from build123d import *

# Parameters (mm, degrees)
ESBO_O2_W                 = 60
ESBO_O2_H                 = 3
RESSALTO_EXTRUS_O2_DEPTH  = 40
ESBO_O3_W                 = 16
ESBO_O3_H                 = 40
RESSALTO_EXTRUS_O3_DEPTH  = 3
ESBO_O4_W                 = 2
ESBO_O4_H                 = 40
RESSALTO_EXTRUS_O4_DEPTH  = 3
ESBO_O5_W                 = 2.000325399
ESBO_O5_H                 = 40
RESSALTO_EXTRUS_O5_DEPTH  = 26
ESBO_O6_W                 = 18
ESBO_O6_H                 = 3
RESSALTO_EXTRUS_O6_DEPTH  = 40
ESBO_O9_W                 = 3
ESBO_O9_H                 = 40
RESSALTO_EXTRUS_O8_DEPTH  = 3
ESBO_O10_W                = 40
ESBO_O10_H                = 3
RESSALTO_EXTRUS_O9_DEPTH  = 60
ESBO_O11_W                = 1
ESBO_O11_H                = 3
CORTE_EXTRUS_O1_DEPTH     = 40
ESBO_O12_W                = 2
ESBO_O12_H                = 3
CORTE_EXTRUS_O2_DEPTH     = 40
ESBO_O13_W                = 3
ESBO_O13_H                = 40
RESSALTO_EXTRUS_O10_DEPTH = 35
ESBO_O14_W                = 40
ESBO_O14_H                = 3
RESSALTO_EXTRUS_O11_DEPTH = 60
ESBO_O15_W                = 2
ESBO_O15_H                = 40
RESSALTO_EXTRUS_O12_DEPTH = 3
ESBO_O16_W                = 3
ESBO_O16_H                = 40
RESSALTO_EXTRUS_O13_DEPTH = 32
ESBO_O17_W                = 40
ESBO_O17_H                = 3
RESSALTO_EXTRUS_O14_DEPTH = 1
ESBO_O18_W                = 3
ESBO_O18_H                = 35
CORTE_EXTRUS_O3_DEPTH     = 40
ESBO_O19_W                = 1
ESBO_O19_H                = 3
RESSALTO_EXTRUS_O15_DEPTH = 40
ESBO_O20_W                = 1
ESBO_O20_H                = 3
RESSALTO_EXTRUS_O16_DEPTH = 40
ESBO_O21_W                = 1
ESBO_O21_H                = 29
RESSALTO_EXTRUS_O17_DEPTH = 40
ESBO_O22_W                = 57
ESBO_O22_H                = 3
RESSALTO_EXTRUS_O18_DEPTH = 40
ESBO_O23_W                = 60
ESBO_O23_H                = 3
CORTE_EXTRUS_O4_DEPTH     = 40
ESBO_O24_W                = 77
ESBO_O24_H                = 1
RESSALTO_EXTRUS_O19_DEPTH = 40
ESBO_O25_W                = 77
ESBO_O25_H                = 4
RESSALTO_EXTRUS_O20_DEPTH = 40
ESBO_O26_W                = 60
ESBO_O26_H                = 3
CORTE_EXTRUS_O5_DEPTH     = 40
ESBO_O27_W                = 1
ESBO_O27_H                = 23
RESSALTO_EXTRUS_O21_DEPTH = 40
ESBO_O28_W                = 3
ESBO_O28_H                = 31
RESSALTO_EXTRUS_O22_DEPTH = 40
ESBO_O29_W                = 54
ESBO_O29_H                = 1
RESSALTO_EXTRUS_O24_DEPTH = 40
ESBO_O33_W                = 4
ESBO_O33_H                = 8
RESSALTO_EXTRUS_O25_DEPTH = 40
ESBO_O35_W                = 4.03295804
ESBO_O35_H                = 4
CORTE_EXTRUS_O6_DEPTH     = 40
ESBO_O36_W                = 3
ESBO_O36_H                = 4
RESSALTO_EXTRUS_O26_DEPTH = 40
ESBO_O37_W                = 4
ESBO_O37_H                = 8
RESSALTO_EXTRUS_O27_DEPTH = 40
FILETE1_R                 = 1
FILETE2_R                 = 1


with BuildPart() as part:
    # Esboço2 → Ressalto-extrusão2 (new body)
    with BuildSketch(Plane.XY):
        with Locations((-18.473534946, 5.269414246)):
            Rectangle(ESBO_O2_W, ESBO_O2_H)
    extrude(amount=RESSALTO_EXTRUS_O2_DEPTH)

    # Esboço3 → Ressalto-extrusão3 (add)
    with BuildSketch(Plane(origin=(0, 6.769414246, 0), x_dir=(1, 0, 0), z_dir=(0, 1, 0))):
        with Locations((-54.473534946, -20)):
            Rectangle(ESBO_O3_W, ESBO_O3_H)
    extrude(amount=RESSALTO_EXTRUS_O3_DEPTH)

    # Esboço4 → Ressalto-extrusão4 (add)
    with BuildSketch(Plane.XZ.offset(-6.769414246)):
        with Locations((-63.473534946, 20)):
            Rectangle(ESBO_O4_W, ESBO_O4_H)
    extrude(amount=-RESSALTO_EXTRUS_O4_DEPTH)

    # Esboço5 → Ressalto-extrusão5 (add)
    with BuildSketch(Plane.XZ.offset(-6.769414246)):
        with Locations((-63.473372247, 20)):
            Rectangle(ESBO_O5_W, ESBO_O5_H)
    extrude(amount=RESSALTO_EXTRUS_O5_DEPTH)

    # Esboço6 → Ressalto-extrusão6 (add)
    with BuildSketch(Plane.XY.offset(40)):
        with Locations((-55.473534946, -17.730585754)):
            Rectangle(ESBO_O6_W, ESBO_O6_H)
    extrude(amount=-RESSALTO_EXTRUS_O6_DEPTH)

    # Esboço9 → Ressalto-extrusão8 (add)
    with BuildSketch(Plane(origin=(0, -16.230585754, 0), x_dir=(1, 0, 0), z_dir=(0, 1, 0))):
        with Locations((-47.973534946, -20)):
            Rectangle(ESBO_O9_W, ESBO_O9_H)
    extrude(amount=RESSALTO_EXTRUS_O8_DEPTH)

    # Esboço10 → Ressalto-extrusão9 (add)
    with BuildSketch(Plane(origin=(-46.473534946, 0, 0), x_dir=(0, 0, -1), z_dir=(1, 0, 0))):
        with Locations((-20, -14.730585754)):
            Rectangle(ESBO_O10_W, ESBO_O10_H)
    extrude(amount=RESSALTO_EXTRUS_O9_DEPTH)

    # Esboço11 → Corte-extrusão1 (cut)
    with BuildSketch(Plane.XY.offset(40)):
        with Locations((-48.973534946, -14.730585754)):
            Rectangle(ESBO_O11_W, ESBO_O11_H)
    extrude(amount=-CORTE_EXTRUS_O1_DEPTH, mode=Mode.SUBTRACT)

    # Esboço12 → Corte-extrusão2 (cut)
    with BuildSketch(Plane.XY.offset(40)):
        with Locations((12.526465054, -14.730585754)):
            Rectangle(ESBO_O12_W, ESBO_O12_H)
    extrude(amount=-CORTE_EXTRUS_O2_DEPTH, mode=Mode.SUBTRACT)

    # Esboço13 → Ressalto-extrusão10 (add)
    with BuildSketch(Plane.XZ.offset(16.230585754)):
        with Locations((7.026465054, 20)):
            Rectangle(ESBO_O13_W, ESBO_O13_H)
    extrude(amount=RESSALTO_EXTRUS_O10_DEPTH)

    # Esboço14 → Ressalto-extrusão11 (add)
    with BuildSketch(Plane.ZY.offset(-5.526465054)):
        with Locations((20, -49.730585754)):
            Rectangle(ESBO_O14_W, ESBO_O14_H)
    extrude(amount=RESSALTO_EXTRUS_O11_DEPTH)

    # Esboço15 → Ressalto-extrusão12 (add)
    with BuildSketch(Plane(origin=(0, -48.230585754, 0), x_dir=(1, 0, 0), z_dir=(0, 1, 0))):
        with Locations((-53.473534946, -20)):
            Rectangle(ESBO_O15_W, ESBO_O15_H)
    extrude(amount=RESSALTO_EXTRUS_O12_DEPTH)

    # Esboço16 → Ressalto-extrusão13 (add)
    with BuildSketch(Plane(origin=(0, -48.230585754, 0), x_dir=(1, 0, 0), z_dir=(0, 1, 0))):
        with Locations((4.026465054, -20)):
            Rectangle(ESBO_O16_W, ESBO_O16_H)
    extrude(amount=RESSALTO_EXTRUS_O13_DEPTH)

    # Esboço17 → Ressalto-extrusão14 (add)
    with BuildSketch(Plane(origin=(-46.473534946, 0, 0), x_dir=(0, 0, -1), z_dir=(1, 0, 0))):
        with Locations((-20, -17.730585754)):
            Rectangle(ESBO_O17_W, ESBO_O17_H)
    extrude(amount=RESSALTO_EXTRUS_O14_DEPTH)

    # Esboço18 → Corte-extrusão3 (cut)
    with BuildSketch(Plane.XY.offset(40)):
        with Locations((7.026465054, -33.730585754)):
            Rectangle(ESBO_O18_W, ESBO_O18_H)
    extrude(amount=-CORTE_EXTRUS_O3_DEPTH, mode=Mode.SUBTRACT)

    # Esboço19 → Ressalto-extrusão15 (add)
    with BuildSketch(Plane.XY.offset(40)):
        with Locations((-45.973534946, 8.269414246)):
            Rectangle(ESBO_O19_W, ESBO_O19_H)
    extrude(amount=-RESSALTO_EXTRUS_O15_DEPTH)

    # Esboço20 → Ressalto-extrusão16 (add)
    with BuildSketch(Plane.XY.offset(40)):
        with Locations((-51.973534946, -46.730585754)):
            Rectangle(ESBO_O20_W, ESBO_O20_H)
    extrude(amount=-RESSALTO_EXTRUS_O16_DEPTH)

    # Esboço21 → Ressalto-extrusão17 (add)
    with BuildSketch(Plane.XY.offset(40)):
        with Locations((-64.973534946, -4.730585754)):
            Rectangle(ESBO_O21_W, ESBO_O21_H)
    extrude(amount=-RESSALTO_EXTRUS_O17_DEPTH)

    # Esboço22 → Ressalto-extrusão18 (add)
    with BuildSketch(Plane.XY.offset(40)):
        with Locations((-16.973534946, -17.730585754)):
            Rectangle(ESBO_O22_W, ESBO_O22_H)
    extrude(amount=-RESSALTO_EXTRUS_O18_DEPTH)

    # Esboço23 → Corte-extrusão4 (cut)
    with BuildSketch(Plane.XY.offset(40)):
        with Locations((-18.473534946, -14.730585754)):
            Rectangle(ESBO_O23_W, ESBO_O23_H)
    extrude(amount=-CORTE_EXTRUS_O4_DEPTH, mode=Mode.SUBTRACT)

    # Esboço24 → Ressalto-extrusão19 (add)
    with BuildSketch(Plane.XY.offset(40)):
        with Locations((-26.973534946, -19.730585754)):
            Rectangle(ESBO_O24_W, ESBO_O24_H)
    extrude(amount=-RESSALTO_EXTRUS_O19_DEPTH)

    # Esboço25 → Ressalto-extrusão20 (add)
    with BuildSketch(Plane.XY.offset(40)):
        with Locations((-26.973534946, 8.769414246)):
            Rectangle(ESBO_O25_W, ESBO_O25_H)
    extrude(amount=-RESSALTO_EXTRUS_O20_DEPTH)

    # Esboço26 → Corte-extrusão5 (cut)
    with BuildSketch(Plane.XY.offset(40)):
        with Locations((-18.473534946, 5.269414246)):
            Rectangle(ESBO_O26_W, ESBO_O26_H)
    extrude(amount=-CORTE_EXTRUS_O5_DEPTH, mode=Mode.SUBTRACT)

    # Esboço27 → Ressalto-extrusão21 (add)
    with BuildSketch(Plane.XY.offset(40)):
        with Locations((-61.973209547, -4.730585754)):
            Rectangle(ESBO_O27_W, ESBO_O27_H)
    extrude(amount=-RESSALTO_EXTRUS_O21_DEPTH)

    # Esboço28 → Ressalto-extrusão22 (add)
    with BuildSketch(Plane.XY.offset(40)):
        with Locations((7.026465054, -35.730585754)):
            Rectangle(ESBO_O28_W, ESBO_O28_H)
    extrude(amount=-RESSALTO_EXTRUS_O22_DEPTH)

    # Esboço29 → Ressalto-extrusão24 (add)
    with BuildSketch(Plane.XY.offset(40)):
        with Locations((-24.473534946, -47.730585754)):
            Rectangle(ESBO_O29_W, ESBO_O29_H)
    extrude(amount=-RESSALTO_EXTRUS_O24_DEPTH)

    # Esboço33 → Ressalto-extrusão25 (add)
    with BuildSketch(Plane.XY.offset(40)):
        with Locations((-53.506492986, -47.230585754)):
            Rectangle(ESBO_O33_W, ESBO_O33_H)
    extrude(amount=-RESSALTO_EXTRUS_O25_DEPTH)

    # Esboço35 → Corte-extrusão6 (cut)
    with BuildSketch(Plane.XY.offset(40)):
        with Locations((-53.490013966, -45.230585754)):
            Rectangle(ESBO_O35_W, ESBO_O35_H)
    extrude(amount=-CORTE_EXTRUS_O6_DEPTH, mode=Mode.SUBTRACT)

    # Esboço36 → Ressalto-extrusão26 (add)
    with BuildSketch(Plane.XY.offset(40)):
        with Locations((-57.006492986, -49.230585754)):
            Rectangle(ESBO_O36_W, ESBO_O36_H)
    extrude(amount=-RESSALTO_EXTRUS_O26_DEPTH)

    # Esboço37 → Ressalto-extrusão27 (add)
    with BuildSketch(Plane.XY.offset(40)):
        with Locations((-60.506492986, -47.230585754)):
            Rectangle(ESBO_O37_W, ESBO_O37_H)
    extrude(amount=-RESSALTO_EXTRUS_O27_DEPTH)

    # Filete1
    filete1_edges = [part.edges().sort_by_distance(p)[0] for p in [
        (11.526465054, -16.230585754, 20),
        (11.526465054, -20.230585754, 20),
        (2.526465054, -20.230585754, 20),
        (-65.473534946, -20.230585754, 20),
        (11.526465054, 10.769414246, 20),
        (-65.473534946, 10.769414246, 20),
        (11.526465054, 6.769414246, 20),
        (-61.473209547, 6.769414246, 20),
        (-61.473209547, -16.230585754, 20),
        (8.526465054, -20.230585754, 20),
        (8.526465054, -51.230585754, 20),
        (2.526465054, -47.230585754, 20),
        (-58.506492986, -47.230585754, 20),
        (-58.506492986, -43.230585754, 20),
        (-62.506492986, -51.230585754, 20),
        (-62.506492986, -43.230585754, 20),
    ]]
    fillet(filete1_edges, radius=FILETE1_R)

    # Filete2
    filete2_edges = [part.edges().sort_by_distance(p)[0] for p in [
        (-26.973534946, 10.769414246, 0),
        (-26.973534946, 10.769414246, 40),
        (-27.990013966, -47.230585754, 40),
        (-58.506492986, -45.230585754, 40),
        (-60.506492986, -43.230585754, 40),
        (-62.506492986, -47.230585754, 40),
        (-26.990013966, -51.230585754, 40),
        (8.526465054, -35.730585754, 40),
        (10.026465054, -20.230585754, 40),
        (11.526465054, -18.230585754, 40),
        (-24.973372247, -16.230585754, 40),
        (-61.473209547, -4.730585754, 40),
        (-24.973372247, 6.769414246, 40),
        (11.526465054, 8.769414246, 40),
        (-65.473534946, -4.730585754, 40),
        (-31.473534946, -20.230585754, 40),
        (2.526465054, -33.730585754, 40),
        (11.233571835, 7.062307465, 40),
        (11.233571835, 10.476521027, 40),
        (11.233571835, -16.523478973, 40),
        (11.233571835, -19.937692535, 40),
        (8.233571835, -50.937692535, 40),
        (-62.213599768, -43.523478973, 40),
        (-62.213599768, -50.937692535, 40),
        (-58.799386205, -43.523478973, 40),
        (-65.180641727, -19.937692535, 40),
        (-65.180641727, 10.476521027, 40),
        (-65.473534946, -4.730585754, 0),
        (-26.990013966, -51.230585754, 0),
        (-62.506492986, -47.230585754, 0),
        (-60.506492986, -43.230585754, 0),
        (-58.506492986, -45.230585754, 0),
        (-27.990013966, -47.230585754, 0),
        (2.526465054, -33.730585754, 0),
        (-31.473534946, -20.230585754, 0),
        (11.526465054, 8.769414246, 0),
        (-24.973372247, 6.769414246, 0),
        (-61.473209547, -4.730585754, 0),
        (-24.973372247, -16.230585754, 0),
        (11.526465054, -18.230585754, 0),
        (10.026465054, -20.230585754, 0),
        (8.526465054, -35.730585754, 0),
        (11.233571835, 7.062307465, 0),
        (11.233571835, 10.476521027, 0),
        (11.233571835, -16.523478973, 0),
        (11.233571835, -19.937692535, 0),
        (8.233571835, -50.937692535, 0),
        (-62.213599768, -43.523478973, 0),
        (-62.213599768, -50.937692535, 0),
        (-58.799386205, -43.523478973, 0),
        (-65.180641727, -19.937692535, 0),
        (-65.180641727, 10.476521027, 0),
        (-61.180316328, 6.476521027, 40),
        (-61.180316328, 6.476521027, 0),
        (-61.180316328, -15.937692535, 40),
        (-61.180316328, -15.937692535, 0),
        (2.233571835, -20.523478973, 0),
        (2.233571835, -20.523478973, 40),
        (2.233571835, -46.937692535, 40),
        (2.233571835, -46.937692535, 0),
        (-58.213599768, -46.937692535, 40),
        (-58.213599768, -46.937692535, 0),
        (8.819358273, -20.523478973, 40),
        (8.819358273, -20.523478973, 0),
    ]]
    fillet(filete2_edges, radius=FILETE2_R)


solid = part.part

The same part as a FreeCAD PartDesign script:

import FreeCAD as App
import Part
import Sketcher
from FreeCAD import Vector


def edges_at(feature, points):
    """Names of the edges that pass closest to the given points."""
    edges = feature.Shape.Edges
    near = lambda p: min(range(len(edges)), key=lambda i: edges[i].distToShape(Part.Vertex(*p))[0])
    return sorted({f"Edge{near(p) + 1}" for p in points})


def add_polygon(sketch, points):
    """Adds a closed chain of lines whose ends are joined by coincident constraints."""
    first, n = sketch.GeometryCount, len(points)
    for a, b in zip(points, points[1:] + points[:1]):
        sketch.addGeometry(Part.LineSegment(App.Vector(*a, 0), App.Vector(*b, 0)), False)
    for i in range(n):
        sketch.addConstraint(Sketcher.Constraint("Coincident", first + i, 2, first + (i + 1) % n, 1))

doc = App.newDocument("Part")
params = doc.addObject("Spreadsheet::Sheet", "Params")
for row, (alias, value) in enumerate([
    ("sketch1_width", "60 mm"),
    ("sketch1_height", "3 mm"),
    ("pad1_length", "40 mm"),
    ("sketch2_width", "16 mm"),
    ("sketch2_height", "40 mm"),
    ("pad2_length", "3 mm"),
    ("sketch3_width", "2 mm"),
    ("sketch3_height", "40 mm"),
    ("pad3_length", "3 mm"),
    ("sketch4_height", "40 mm"),
    ("pad4_length", "26 mm"),
    ("sketch5_width", "18 mm"),
    ("sketch5_height", "3 mm"),
    ("pad5_length", "40 mm"),
    ("sketch6_width", "3 mm"),
    ("sketch6_height", "40 mm"),
    ("pad6_length", "3 mm"),
    ("sketch7_width", "3 mm"),
    ("sketch7_height", "40 mm"),
    ("pad7_length", "60 mm"),
    ("sketch8_width", "1 mm"),
    ("sketch8_height", "3 mm"),
    ("pocket1_length", "40 mm"),
    ("sketch9_width", "2 mm"),
    ("sketch9_height", "3 mm"),
    ("pocket2_length", "40 mm"),
    ("sketch10_width", "3 mm"),
    ("sketch10_height", "40 mm"),
    ("pad8_length", "35 mm"),
    ("sketch11_width", "3 mm"),
    ("sketch11_height", "40 mm"),
    ("pad9_length", "60 mm"),
    ("sketch12_width", "2 mm"),
    ("sketch12_height", "40 mm"),
    ("pad10_length", "3 mm"),
    ("sketch13_width", "3 mm"),
    ("sketch13_height", "40 mm"),
    ("pad11_length", "32 mm"),
    ("sketch14_width", "3 mm"),
    ("sketch14_height", "40 mm"),
    ("pad12_length", "1 mm"),
    ("sketch15_width", "3 mm"),
    ("sketch15_height", "35 mm"),
    ("pocket3_length", "40 mm"),
    ("sketch16_width", "1 mm"),
    ("sketch16_height", "3 mm"),
    ("pad13_length", "40 mm"),
    ("sketch17_width", "1 mm"),
    ("sketch17_height", "3 mm"),
    ("pad14_length", "40 mm"),
    ("sketch18_width", "1 mm"),
    ("sketch18_height", "29 mm"),
    ("pad15_length", "40 mm"),
    ("sketch19_width", "57 mm"),
    ("sketch19_height", "3 mm"),
    ("pad16_length", "40 mm"),
    ("sketch20_width", "60 mm"),
    ("sketch20_height", "3 mm"),
    ("pocket4_length", "40 mm"),
    ("sketch21_width", "77 mm"),
    ("sketch21_height", "1 mm"),
    ("pad17_length", "40 mm"),
    ("sketch22_width", "77 mm"),
    ("sketch22_height", "4 mm"),
    ("pad18_length", "40 mm"),
    ("sketch23_width", "60 mm"),
    ("sketch23_height", "3 mm"),
    ("pocket5_length", "40 mm"),
    ("sketch24_width", "1 mm"),
    ("sketch24_height", "23 mm"),
    ("pad19_length", "40 mm"),
    ("sketch25_width", "3 mm"),
    ("sketch25_height", "31 mm"),
    ("pad20_length", "40 mm"),
    ("sketch26_width", "54 mm"),
    ("sketch26_height", "1 mm"),
    ("pad21_length", "40 mm"),
    ("sketch27_width", "4 mm"),
    ("sketch27_height", "8 mm"),
    ("pad22_length", "40 mm"),
    ("sketch28_height", "4 mm"),
    ("pocket6_length", "40 mm"),
    ("sketch29_width", "3 mm"),
    ("sketch29_height", "4 mm"),
    ("pad23_length", "40 mm"),
    ("sketch30_width", "4 mm"),
    ("sketch30_height", "8 mm"),
    ("pad24_length", "40 mm"),
    ("fillet_radius", "1 mm"),
    ("fillet2_radius", "1 mm"),
], start=1):
    params.set(f"A{row}", alias)
    params.set(f"B{row}", "=" + value)
    params.setAlias(f"B{row}", alias)

body = doc.addObject("PartDesign::Body", "Body")

sketch1 = body.newObject("Sketcher::SketchObject", "Sketch")
sketch1.AttachmentSupport = (doc.getObject("XY_Plane"), [""])
sketch1.MapMode = "FlatFace"
add_polygon(sketch1, [(-48.5, 6.8), (-48.5, 3.8), (11.5, 3.8), (11.5, 6.8)])
sketch1.addConstraint([
    Sketcher.Constraint("Vertical", 0),
    Sketcher.Constraint("Horizontal", 1),
    Sketcher.Constraint("Vertical", 2),
    Sketcher.Constraint("Horizontal", 3),
    Sketcher.Constraint("DistanceX", 1, 1, 1, 2, 60.0),
    Sketcher.Constraint("DistanceY", 0, 2, 0, 1, 3.0),
    Sketcher.Constraint("DistanceX", 0, 2, -1, 1, 48.473535),
    Sketcher.Constraint("DistanceY", -1, 1, 0, 2, 3.769414),
])
sketch1.setExpression("Constraints[8]", "Params.sketch1_width")
sketch1.setExpression("Constraints[9]", "Params.sketch1_height")
pad1 = body.newObject("PartDesign::Pad", "Pad")
pad1.Profile = sketch1
pad1.setExpression("Length", "Params.pad1_length")

sketch2 = body.newObject("Sketcher::SketchObject", "Sketch001")
sketch2.AttachmentSupport = (doc.getObject("XZ_Plane"), [""])
sketch2.MapMode = "FlatFace"
sketch2.AttachmentOffset = App.Placement(Vector(0, 0, -6.769414), App.Rotation())
add_polygon(sketch2, [(-62, 0), (-62, 40), (-46, 40), (-46, 0)])
sketch2.addConstraint([
    Sketcher.Constraint("Vertical", 0),
    Sketcher.Constraint("Horizontal", 1),
    Sketcher.Constraint("Vertical", 2),
    Sketcher.Constraint("Horizontal", 3),
    Sketcher.Constraint("PointOnObject", 2, 2, -1),
    Sketcher.Constraint("DistanceX", 1, 1, 1, 2, 16.0),
    Sketcher.Constraint("DistanceY", 0, 1, 0, 2, 40.0),
    Sketcher.Constraint("DistanceX", 0, 2, -1, 1, 62.473535),
])
sketch2.setExpression("Constraints[9]", "Params.sketch2_width")
sketch2.setExpression("Constraints[10]", "Params.sketch2_height")
pad2 = body.newObject("PartDesign::Pad", "Pad001")
pad2.Profile = sketch2
pad2.setExpression("Length", "Params.pad2_length")
pad2.Reversed = True

sketch3 = body.newObject("Sketcher::SketchObject", "Sketch002")
sketch3.AttachmentSupport = (doc.getObject("XZ_Plane"), [""])
sketch3.MapMode = "FlatFace"
sketch3.AttachmentOffset = App.Placement(Vector(0, 0, -6.769414), App.Rotation())
add_polygon(sketch3, [(-64.5, 40), (-64.5, 0), (-62.5, 0), (-62.5, 40)])
sketch3.addConstraint([
    Sketcher.Constraint("Vertical", 0),
    Sketcher.Constraint("Horizontal", 1),
    Sketcher.Constraint("Vertical", 2),
    Sketcher.Constraint("Horizontal", 3),
    Sketcher.Constraint("PointOnObject", 0, 2, -1),
    Sketcher.Constraint("DistanceX", 1, 1, 1, 2, 2.0),
    Sketcher.Constraint("DistanceY", 0, 2, 0, 1, 40.0),
    Sketcher.Constraint("DistanceX", 0, 2, -1, 1, 64.473535),
])
sketch3.setExpression("Constraints[9]", "Params.sketch3_width")
sketch3.setExpression("Constraints[10]", "Params.sketch3_height")
pad3 = body.newObject("PartDesign::Pad", "Pad002")
pad3.Profile = sketch3
pad3.setExpression("Length", "Params.pad3_length")
pad3.Reversed = True

sketch4 = body.newObject("Sketcher::SketchObject", "Sketch003")
sketch4.AttachmentSupport = (doc.getObject("XZ_Plane"), [""])
sketch4.MapMode = "FlatFace"
sketch4.AttachmentOffset = App.Placement(Vector(0, 0, -6.769414), App.Rotation())
add_polygon(sketch4, [(-64.5, 40), (-64.5, 0), (-62.5, 0), (-62.5, 40)])
sketch4.addConstraint([
    Sketcher.Constraint("Vertical", 0),
    Sketcher.Constraint("Horizontal", 1),
    Sketcher.Constraint("Vertical", 2),
    Sketcher.Constraint("Horizontal", 3),
    Sketcher.Constraint("PointOnObject", 0, 2, -1),
    Sketcher.Constraint("DistanceY", 0, 2, 0, 1, 40.0),
    Sketcher.Constraint("DistanceX", 1, 1, 1, 2, 2.000325),
    Sketcher.Constraint("DistanceX", 1, 2, -1, 1, 62.47321),
])
sketch4.setExpression("Constraints[9]", "Params.sketch4_height")
pad4 = body.newObject("PartDesign::Pad", "Pad003")
pad4.Profile = sketch4
pad4.setExpression("Length", "Params.pad4_length")

sketch5 = body.newObject("Sketcher::SketchObject", "Sketch004")
sketch5.AttachmentSupport = (doc.getObject("XY_Plane"), [""])
sketch5.MapMode = "FlatFace"
sketch5.AttachmentOffset = App.Placement(Vector(0, 0, 40), App.Rotation())
add_polygon(sketch5, [(-64.5, -16.2), (-64.5, -19.2), (-46.5, -19.2), (-46.5, -16.2)])
sketch5.addConstraint([
    Sketcher.Constraint("Vertical", 0),
    Sketcher.Constraint("Horizontal", 1),
    Sketcher.Constraint("Vertical", 2),
    Sketcher.Constraint("Horizontal", 3),
    Sketcher.Constraint("DistanceX", 1, 1, 1, 2, 18.0),
    Sketcher.Constraint("DistanceY", 0, 2, 0, 1, 3.0),
    Sketcher.Constraint("DistanceX", 0, 2, -1, 1, 64.473535),
    Sketcher.Constraint("DistanceY", 0, 2, -1, 1, 19.230586),
])
sketch5.setExpression("Constraints[8]", "Params.sketch5_width")
sketch5.setExpression("Constraints[9]", "Params.sketch5_height")
pad5 = body.newObject("PartDesign::Pad", "Pad004")
pad5.Profile = sketch5
pad5.setExpression("Length", "Params.pad5_length")
pad5.Reversed = True

sketch6 = body.newObject("Sketcher::SketchObject", "Sketch005")
sketch6.AttachmentSupport = (doc.getObject("XZ_Plane"), [""])
sketch6.MapMode = "FlatFace"
sketch6.AttachmentOffset = App.Placement(Vector(0, 0, 16.230586), App.Rotation())
add_polygon(sketch6, [(-49.5, 0), (-49.5, 40), (-46.5, 40), (-46.5, 0)])
sketch6.addConstraint([
    Sketcher.Constraint("Vertical", 0),
    Sketcher.Constraint("Horizontal", 1),
    Sketcher.Constraint("Vertical", 2),
    Sketcher.Constraint("Horizontal", 3),
    Sketcher.Constraint("PointOnObject", 2, 2, -1),
    Sketcher.Constraint("DistanceX", 1, 1, 1, 2, 3.0),
    Sketcher.Constraint("DistanceY", 0, 1, 0, 2, 40.0),
    Sketcher.Constraint("DistanceX", 0, 2, -1, 1, 49.473535),
])
sketch6.setExpression("Constraints[9]", "Params.sketch6_width")
sketch6.setExpression("Constraints[10]", "Params.sketch6_height")
pad6 = body.newObject("PartDesign::Pad", "Pad005")
pad6.Profile = sketch6
pad6.setExpression("Length", "Params.pad6_length")
pad6.Reversed = True

sketch7 = body.newObject("Sketcher::SketchObject", "Sketch006")
sketch7.AttachmentSupport = (doc.getObject("YZ_Plane"), [""])
sketch7.MapMode = "FlatFace"
sketch7.AttachmentOffset = App.Placement(Vector(0, 0, -46.473535), App.Rotation())
add_polygon(sketch7, [(-13.2, 40), (-16.2, 40), (-16.2, 0), (-13.2, 0)])
sketch7.addConstraint([
    Sketcher.Constraint("Horizontal", 0),
    Sketcher.Constraint("Vertical", 1),
    Sketcher.Constraint("Horizontal", 2),
    Sketcher.Constraint("Vertical", 3),
    Sketcher.Constraint("PointOnObject", 1, 2, -1),
    Sketcher.Constraint("DistanceX", 0, 2, 0, 1, 3.0),
    Sketcher.Constraint("DistanceY", 1, 2, 1, 1, 40.0),
    Sketcher.Constraint("DistanceX", 0, 2, -1, 1, 16.230586),
])
sketch7.setExpression("Constraints[9]", "Params.sketch7_width")
sketch7.setExpression("Constraints[10]", "Params.sketch7_height")
pad7 = body.newObject("PartDesign::Pad", "Pad006")
pad7.Profile = sketch7
pad7.setExpression("Length", "Params.pad7_length")

sketch8 = body.newObject("Sketcher::SketchObject", "Sketch007")
sketch8.AttachmentSupport = (doc.getObject("XY_Plane"), [""])
sketch8.MapMode = "FlatFace"
sketch8.AttachmentOffset = App.Placement(Vector(0, 0, 40), App.Rotation())
add_polygon(sketch8, [(-49.5, -13.2), (-49.5, -16.2), (-48.5, -16.2), (-48.5, -13.2)])
sketch8.addConstraint([
    Sketcher.Constraint("Vertical", 0),
    Sketcher.Constraint("Horizontal", 1),
    Sketcher.Constraint("Vertical", 2),
    Sketcher.Constraint("Horizontal", 3),
    Sketcher.Constraint("DistanceX", 1, 1, 1, 2, 1.0),
    Sketcher.Constraint("DistanceY", 0, 2, 0, 1, 3.0),
    Sketcher.Constraint("DistanceX", 0, 2, -1, 1, 49.473535),
    Sketcher.Constraint("DistanceY", 0, 2, -1, 1, 16.230586),
])
sketch8.setExpression("Constraints[8]", "Params.sketch8_width")
sketch8.setExpression("Constraints[9]", "Params.sketch8_height")
pocket1 = body.newObject("PartDesign::Pocket", "Pocket")
pocket1.Profile = sketch8
pocket1.setExpression("Length", "Params.pocket1_length")

sketch9 = body.newObject("Sketcher::SketchObject", "Sketch008")
sketch9.AttachmentSupport = (doc.getObject("XY_Plane"), [""])
sketch9.MapMode = "FlatFace"
sketch9.AttachmentOffset = App.Placement(Vector(0, 0, 40), App.Rotation())
add_polygon(sketch9, [(11.5, -13.2), (11.5, -16.2), (13.5, -16.2), (13.5, -13.2)])
sketch9.addConstraint([
    Sketcher.Constraint("Vertical", 0),
    Sketcher.Constraint("Horizontal", 1),
    Sketcher.Constraint("Vertical", 2),
    Sketcher.Constraint("Horizontal", 3),
    Sketcher.Constraint("DistanceX", 1, 1, 1, 2, 2.0),
    Sketcher.Constraint("DistanceY", 0, 2, 0, 1, 3.0),
    Sketcher.Constraint("DistanceX", -1, 1, 0, 2, 11.526465),
    Sketcher.Constraint("DistanceY", 0, 2, -1, 1, 16.230586),
])
sketch9.setExpression("Constraints[8]", "Params.sketch9_width")
sketch9.setExpression("Constraints[9]", "Params.sketch9_height")
pocket2 = body.newObject("PartDesign::Pocket", "Pocket001")
pocket2.Profile = sketch9
pocket2.setExpression("Length", "Params.pocket2_length")

sketch10 = body.newObject("Sketcher::SketchObject", "Sketch009")
sketch10.AttachmentSupport = (doc.getObject("XZ_Plane"), [""])
sketch10.MapMode = "FlatFace"
sketch10.AttachmentOffset = App.Placement(Vector(0, 0, 16.230586), App.Rotation())
add_polygon(sketch10, [(5.5, 40), (5.5, 0), (8.5, 0), (8.5, 40)])
sketch10.addConstraint([
    Sketcher.Constraint("Vertical", 0),
    Sketcher.Constraint("Horizontal", 1),
    Sketcher.Constraint("Vertical", 2),
    Sketcher.Constraint("Horizontal", 3),
    Sketcher.Constraint("PointOnObject", 0, 2, -1),
    Sketcher.Constraint("DistanceX", 1, 1, 1, 2, 3.0),
    Sketcher.Constraint("DistanceY", 0, 2, 0, 1, 40.0),
    Sketcher.Constraint("DistanceX", -1, 1, 0, 2, 5.526465),
])
sketch10.setExpression("Constraints[9]", "Params.sketch10_width")
sketch10.setExpression("Constraints[10]", "Params.sketch10_height")
pad8 = body.newObject("PartDesign::Pad", "Pad007")
pad8.Profile = sketch10
pad8.setExpression("Length", "Params.pad8_length")

sketch11 = body.newObject("Sketcher::SketchObject", "Sketch010")
sketch11.AttachmentSupport = (doc.getObject("YZ_Plane"), [""])
sketch11.MapMode = "FlatFace"
sketch11.AttachmentOffset = App.Placement(Vector(0, 0, 5.526465), App.Rotation())
add_polygon(sketch11, [(-48.2, 0), (-51.2, 0), (-51.2, 40), (-48.2, 40)])
sketch11.addConstraint([
    Sketcher.Constraint("Horizontal", 0),
    Sketcher.Constraint("Vertical", 1),
    Sketcher.Constraint("Horizontal", 2),
    Sketcher.Constraint("Vertical", 3),
    Sketcher.Constraint("PointOnObject", 0, 2, -1),
    Sketcher.Constraint("DistanceX", 0, 2, 0, 1, 3.0),
    Sketcher.Constraint("DistanceY", 1, 1, 1, 2, 40.0),
    Sketcher.Constraint("DistanceX", 0, 2, -1, 1, 51.230586),
])
sketch11.setExpression("Constraints[9]", "Params.sketch11_width")
sketch11.setExpression("Constraints[10]", "Params.sketch11_height")
pad9 = body.newObject("PartDesign::Pad", "Pad008")
pad9.Profile = sketch11
pad9.setExpression("Length", "Params.pad9_length")
pad9.Reversed = True

sketch12 = body.newObject("Sketcher::SketchObject", "Sketch011")
sketch12.AttachmentSupport = (doc.getObject("XZ_Plane"), [""])
sketch12.MapMode = "FlatFace"
sketch12.AttachmentOffset = App.Placement(Vector(0, 0, 48.230586), App.Rotation())
add_polygon(sketch12, [(-54.5, 0), (-54.5, 40), (-52.5, 40), (-52.5, 0)])
sketch12.addConstraint([
    Sketcher.Constraint("Vertical", 0),
    Sketcher.Constraint("Horizontal", 1),
    Sketcher.Constraint("Vertical", 2),
    Sketcher.Constraint("Horizontal", 3),
    Sketcher.Constraint("PointOnObject", 2, 2, -1),
    Sketcher.Constraint("DistanceX", 1, 1, 1, 2, 2.0),
    Sketcher.Constraint("DistanceY", 0, 1, 0, 2, 40.0),
    Sketcher.Constraint("DistanceX", 0, 2, -1, 1, 54.473535),
])
sketch12.setExpression("Constraints[9]", "Params.sketch12_width")
sketch12.setExpression("Constraints[10]", "Params.sketch12_height")
pad10 = body.newObject("PartDesign::Pad", "Pad009")
pad10.Profile = sketch12
pad10.setExpression("Length", "Params.pad10_length")
pad10.Reversed = True

sketch13 = body.newObject("Sketcher::SketchObject", "Sketch012")
sketch13.AttachmentSupport = (doc.getObject("XZ_Plane"), [""])
sketch13.MapMode = "FlatFace"
sketch13.AttachmentOffset = App.Placement(Vector(0, 0, 48.230586), App.Rotation())
add_polygon(sketch13, [(2.5, 0), (2.5, 40), (5.5, 40), (5.5, 0)])
sketch13.addConstraint([
    Sketcher.Constraint("Vertical", 0),
    Sketcher.Constraint("Horizontal", 1),
    Sketcher.Constraint("Vertical", 2),
    Sketcher.Constraint("Horizontal", 3),
    Sketcher.Constraint("PointOnObject", 2, 2, -1),
    Sketcher.Constraint("DistanceX", 1, 1, 1, 2, 3.0),
    Sketcher.Constraint("DistanceY", 0, 1, 0, 2, 40.0),
    Sketcher.Constraint("DistanceX", -1, 1, 0, 2, 2.526465),
])
sketch13.setExpression("Constraints[9]", "Params.sketch13_width")
sketch13.setExpression("Constraints[10]", "Params.sketch13_height")
pad11 = body.newObject("PartDesign::Pad", "Pad010")
pad11.Profile = sketch13
pad11.setExpression("Length", "Params.pad11_length")
pad11.Reversed = True

sketch14 = body.newObject("Sketcher::SketchObject", "Sketch013")
sketch14.AttachmentSupport = (doc.getObject("YZ_Plane"), [""])
sketch14.MapMode = "FlatFace"
sketch14.AttachmentOffset = App.Placement(Vector(0, 0, -46.473535), App.Rotation())
add_polygon(sketch14, [(-16.2, 40), (-19.2, 40), (-19.2, 0), (-16.2, 0)])
sketch14.addConstraint([
    Sketcher.Constraint("Horizontal", 0),
    Sketcher.Constraint("Vertical", 1),
    Sketcher.Constraint("Horizontal", 2),
    Sketcher.Constraint("Vertical", 3),
    Sketcher.Constraint("PointOnObject", 1, 2, -1),
    Sketcher.Constraint("DistanceX", 0, 2, 0, 1, 3.0),
    Sketcher.Constraint("DistanceY", 1, 2, 1, 1, 40.0),
    Sketcher.Constraint("DistanceX", 0, 2, -1, 1, 19.230586),
])
sketch14.setExpression("Constraints[9]", "Params.sketch14_width")
sketch14.setExpression("Constraints[10]", "Params.sketch14_height")
pad12 = body.newObject("PartDesign::Pad", "Pad011")
pad12.Profile = sketch14
pad12.setExpression("Length", "Params.pad12_length")

sketch15 = body.newObject("Sketcher::SketchObject", "Sketch014")
sketch15.AttachmentSupport = (doc.getObject("XY_Plane"), [""])
sketch15.MapMode = "FlatFace"
sketch15.AttachmentOffset = App.Placement(Vector(0, 0, 40), App.Rotation())
add_polygon(sketch15, [(5.5, -16.2), (5.5, -51.2), (8.5, -51.2), (8.5, -16.2)])
sketch15.addConstraint([
    Sketcher.Constraint("Vertical", 0),
    Sketcher.Constraint("Horizontal", 1),
    Sketcher.Constraint("Vertical", 2),
    Sketcher.Constraint("Horizontal", 3),
    Sketcher.Constraint("DistanceX", 1, 1, 1, 2, 3.0),
    Sketcher.Constraint("DistanceY", 0, 2, 0, 1, 35.0),
    Sketcher.Constraint("DistanceX", -1, 1, 0, 2, 5.526465),
    Sketcher.Constraint("DistanceY", 0, 2, -1, 1, 51.230586),
])
sketch15.setExpression("Constraints[8]", "Params.sketch15_width")
sketch15.setExpression("Constraints[9]", "Params.sketch15_height")
pocket3 = body.newObject("PartDesign::Pocket", "Pocket002")
pocket3.Profile = sketch15
pocket3.setExpression("Length", "Params.pocket3_length")

sketch16 = body.newObject("Sketcher::SketchObject", "Sketch015")
sketch16.AttachmentSupport = (doc.getObject("XY_Plane"), [""])
sketch16.MapMode = "FlatFace"
sketch16.AttachmentOffset = App.Placement(Vector(0, 0, 40), App.Rotation())
add_polygon(sketch16, [(-46.5, 9.8), (-46.5, 6.8), (-45.5, 6.8), (-45.5, 9.8)])
sketch16.addConstraint([
    Sketcher.Constraint("Vertical", 0),
    Sketcher.Constraint("Horizontal", 1),
    Sketcher.Constraint("Vertical", 2),
    Sketcher.Constraint("Horizontal", 3),
    Sketcher.Constraint("DistanceX", 1, 1, 1, 2, 1.0),
    Sketcher.Constraint("DistanceY", 0, 2, 0, 1, 3.0),
    Sketcher.Constraint("DistanceX", 0, 2, -1, 1, 46.473535),
    Sketcher.Constraint("DistanceY", -1, 1, 0, 2, 6.769414),
])
sketch16.setExpression("Constraints[8]", "Params.sketch16_width")
sketch16.setExpression("Constraints[9]", "Params.sketch16_height")
pad13 = body.newObject("PartDesign::Pad", "Pad012")
pad13.Profile = sketch16
pad13.setExpression("Length", "Params.pad13_length")
pad13.Reversed = True

sketch17 = body.newObject("Sketcher::SketchObject", "Sketch016")
sketch17.AttachmentSupport = (doc.getObject("XY_Plane"), [""])
sketch17.MapMode = "FlatFace"
sketch17.AttachmentOffset = App.Placement(Vector(0, 0, 40), App.Rotation())
add_polygon(sketch17, [(-52.5, -45.2), (-52.5, -48.2), (-51.5, -48.2), (-51.5, -45.2)])
sketch17.addConstraint([
    Sketcher.Constraint("Vertical", 0),
    Sketcher.Constraint("Horizontal", 1),
    Sketcher.Constraint("Vertical", 2),
    Sketcher.Constraint("Horizontal", 3),
    Sketcher.Constraint("DistanceX", 1, 1, 1, 2, 1.0),
    Sketcher.Constraint("DistanceY", 0, 2, 0, 1, 3.0),
    Sketcher.Constraint("DistanceX", 0, 2, -1, 1, 52.473535),
    Sketcher.Constraint("DistanceY", 0, 2, -1, 1, 48.230586),
])
sketch17.setExpression("Constraints[8]", "Params.sketch17_width")
sketch17.setExpression("Constraints[9]", "Params.sketch17_height")
pad14 = body.newObject("PartDesign::Pad", "Pad013")
pad14.Profile = sketch17
pad14.setExpression("Length", "Params.pad14_length")
pad14.Reversed = True

sketch18 = body.newObject("Sketcher::SketchObject", "Sketch017")
sketch18.AttachmentSupport = (doc.getObject("XY_Plane"), [""])
sketch18.MapMode = "FlatFace"
sketch18.AttachmentOffset = App.Placement(Vector(0, 0, 40), App.Rotation())
add_polygon(sketch18, [(-65.5, 9.8), (-65.5, -19.2), (-64.5, -19.2), (-64.5, 9.8)])
sketch18.addConstraint([
    Sketcher.Constraint("Vertical", 0),
    Sketcher.Constraint("Horizontal", 1),
    Sketcher.Constraint("Vertical", 2),
    Sketcher.Constraint("Horizontal", 3),
    Sketcher.Constraint("DistanceX", 1, 1, 1, 2, 1.0),
    Sketcher.Constraint("DistanceY", 0, 2, 0, 1, 29.0),
    Sketcher.Constraint("DistanceX", 0, 2, -1, 1, 65.473535),
    Sketcher.Constraint("DistanceY", 0, 2, -1, 1, 19.230586),
])
sketch18.setExpression("Constraints[8]", "Params.sketch18_width")
sketch18.setExpression("Constraints[9]", "Params.sketch18_height")
pad15 = body.newObject("PartDesign::Pad", "Pad014")
pad15.Profile = sketch18
pad15.setExpression("Length", "Params.pad15_length")
pad15.Reversed = True

sketch19 = body.newObject("Sketcher::SketchObject", "Sketch018")
sketch19.AttachmentSupport = (doc.getObject("XY_Plane"), [""])
sketch19.MapMode = "FlatFace"
sketch19.AttachmentOffset = App.Placement(Vector(0, 0, 40), App.Rotation())
add_polygon(sketch19, [(-45.5, -16.2), (-45.5, -19.2), (11.5, -19.2), (11.5, -16.2)])
sketch19.addConstraint([
    Sketcher.Constraint("Vertical", 0),
    Sketcher.Constraint("Horizontal", 1),
    Sketcher.Constraint("Vertical", 2),
    Sketcher.Constraint("Horizontal", 3),
    Sketcher.Constraint("DistanceX", 1, 1, 1, 2, 57.0),
    Sketcher.Constraint("DistanceY", 0, 2, 0, 1, 3.0),
    Sketcher.Constraint("DistanceX", 0, 2, -1, 1, 45.473535),
    Sketcher.Constraint("DistanceY", 0, 2, -1, 1, 19.230586),
])
sketch19.setExpression("Constraints[8]", "Params.sketch19_width")
sketch19.setExpression("Constraints[9]", "Params.sketch19_height")
pad16 = body.newObject("PartDesign::Pad", "Pad015")
pad16.Profile = sketch19
pad16.setExpression("Length", "Params.pad16_length")
pad16.Reversed = True

sketch20 = body.newObject("Sketcher::SketchObject", "Sketch019")
sketch20.AttachmentSupport = (doc.getObject("XY_Plane"), [""])
sketch20.MapMode = "FlatFace"
sketch20.AttachmentOffset = App.Placement(Vector(0, 0, 40), App.Rotation())
add_polygon(sketch20, [(-48.5, -13.2), (-48.5, -16.2), (11.5, -16.2), (11.5, -13.2)])
sketch20.addConstraint([
    Sketcher.Constraint("Vertical", 0),
    Sketcher.Constraint("Horizontal", 1),
    Sketcher.Constraint("Vertical", 2),
    Sketcher.Constraint("Horizontal", 3),
    Sketcher.Constraint("DistanceX", 1, 1, 1, 2, 60.0),
    Sketcher.Constraint("DistanceY", 0, 2, 0, 1, 3.0),
    Sketcher.Constraint("DistanceX", 0, 2, -1, 1, 48.473535),
    Sketcher.Constraint("DistanceY", 0, 2, -1, 1, 16.230586),
])
sketch20.setExpression("Constraints[8]", "Params.sketch20_width")
sketch20.setExpression("Constraints[9]", "Params.sketch20_height")
pocket4 = body.newObject("PartDesign::Pocket", "Pocket003")
pocket4.Profile = sketch20
pocket4.setExpression("Length", "Params.pocket4_length")

sketch21 = body.newObject("Sketcher::SketchObject", "Sketch020")
sketch21.AttachmentSupport = (doc.getObject("XY_Plane"), [""])
sketch21.MapMode = "FlatFace"
sketch21.AttachmentOffset = App.Placement(Vector(0, 0, 40), App.Rotation())
add_polygon(sketch21, [(-65.5, -19.2), (-65.5, -20.2), (11.5, -20.2), (11.5, -19.2)])
sketch21.addConstraint([
    Sketcher.Constraint("Vertical", 0),
    Sketcher.Constraint("Horizontal", 1),
    Sketcher.Constraint("Vertical", 2),
    Sketcher.Constraint("Horizontal", 3),
    Sketcher.Constraint("DistanceX", 1, 1, 1, 2, 77.0),
    Sketcher.Constraint("DistanceY", 0, 2, 0, 1, 1.0),
    Sketcher.Constraint("DistanceX", 0, 2, -1, 1, 65.473535),
    Sketcher.Constraint("DistanceY", 0, 2, -1, 1, 20.230586),
])
sketch21.setExpression("Constraints[8]", "Params.sketch21_width")
sketch21.setExpression("Constraints[9]", "Params.sketch21_height")
pad17 = body.newObject("PartDesign::Pad", "Pad016")
pad17.Profile = sketch21
pad17.setExpression("Length", "Params.pad17_length")
pad17.Reversed = True

sketch22 = body.newObject("Sketcher::SketchObject", "Sketch021")
sketch22.AttachmentSupport = (doc.getObject("XY_Plane"), [""])
sketch22.MapMode = "FlatFace"
sketch22.AttachmentOffset = App.Placement(Vector(0, 0, 40), App.Rotation())
add_polygon(sketch22, [(-65.5, 10.8), (-65.5, 6.8), (11.5, 6.8), (11.5, 10.8)])
sketch22.addConstraint([
    Sketcher.Constraint("Vertical", 0),
    Sketcher.Constraint("Horizontal", 1),
    Sketcher.Constraint("Vertical", 2),
    Sketcher.Constraint("Horizontal", 3),
    Sketcher.Constraint("DistanceX", 1, 1, 1, 2, 77.0),
    Sketcher.Constraint("DistanceY", 0, 2, 0, 1, 4.0),
    Sketcher.Constraint("DistanceX", 0, 2, -1, 1, 65.473535),
    Sketcher.Constraint("DistanceY", -1, 1, 0, 2, 6.769414),
])
sketch22.setExpression("Constraints[8]", "Params.sketch22_width")
sketch22.setExpression("Constraints[9]", "Params.sketch22_height")
pad18 = body.newObject("PartDesign::Pad", "Pad017")
pad18.Profile = sketch22
pad18.setExpression("Length", "Params.pad18_length")
pad18.Reversed = True

sketch23 = body.newObject("Sketcher::SketchObject", "Sketch022")
sketch23.AttachmentSupport = (doc.getObject("XY_Plane"), [""])
sketch23.MapMode = "FlatFace"
sketch23.AttachmentOffset = App.Placement(Vector(0, 0, 40), App.Rotation())
add_polygon(sketch23, [(-48.5, 6.8), (-48.5, 3.8), (11.5, 3.8), (11.5, 6.8)])
sketch23.addConstraint([
    Sketcher.Constraint("Vertical", 0),
    Sketcher.Constraint("Horizontal", 1),
    Sketcher.Constraint("Vertical", 2),
    Sketcher.Constraint("Horizontal", 3),
    Sketcher.Constraint("DistanceX", 1, 1, 1, 2, 60.0),
    Sketcher.Constraint("DistanceY", 0, 2, 0, 1, 3.0),
    Sketcher.Constraint("DistanceX", 0, 2, -1, 1, 48.473535),
    Sketcher.Constraint("DistanceY", -1, 1, 0, 2, 3.769414),
])
sketch23.setExpression("Constraints[8]", "Params.sketch23_width")
sketch23.setExpression("Constraints[9]", "Params.sketch23_height")
pocket5 = body.newObject("PartDesign::Pocket", "Pocket004")
pocket5.Profile = sketch23
pocket5.setExpression("Length", "Params.pocket5_length")

sketch24 = body.newObject("Sketcher::SketchObject", "Sketch023")
sketch24.AttachmentSupport = (doc.getObject("XY_Plane"), [""])
sketch24.MapMode = "FlatFace"
sketch24.AttachmentOffset = App.Placement(Vector(0, 0, 40), App.Rotation())
add_polygon(sketch24, [(-62.5, 6.8), (-62.5, -16.2), (-61.5, -16.2), (-61.5, 6.8)])
sketch24.addConstraint([
    Sketcher.Constraint("Vertical", 0),
    Sketcher.Constraint("Horizontal", 1),
    Sketcher.Constraint("Vertical", 2),
    Sketcher.Constraint("Horizontal", 3),
    Sketcher.Constraint("DistanceX", 1, 1, 1, 2, 1.0),
    Sketcher.Constraint("DistanceY", 0, 2, 0, 1, 23.0),
    Sketcher.Constraint("DistanceX", 0, 2, -1, 1, 62.47321),
    Sketcher.Constraint("DistanceY", 0, 2, -1, 1, 16.230586),
])
sketch24.setExpression("Constraints[8]", "Params.sketch24_width")
sketch24.setExpression("Constraints[9]", "Params.sketch24_height")
pad19 = body.newObject("PartDesign::Pad", "Pad018")
pad19.Profile = sketch24
pad19.setExpression("Length", "Params.pad19_length")
pad19.Reversed = True

sketch25 = body.newObject("Sketcher::SketchObject", "Sketch024")
sketch25.AttachmentSupport = (doc.getObject("XY_Plane"), [""])
sketch25.MapMode = "FlatFace"
sketch25.AttachmentOffset = App.Placement(Vector(0, 0, 40), App.Rotation())
add_polygon(sketch25, [(5.5, -20.2), (5.5, -51.2), (8.5, -51.2), (8.5, -20.2)])
sketch25.addConstraint([
    Sketcher.Constraint("Vertical", 0),
    Sketcher.Constraint("Horizontal", 1),
    Sketcher.Constraint("Vertical", 2),
    Sketcher.Constraint("Horizontal", 3),
    Sketcher.Constraint("DistanceX", 1, 1, 1, 2, 3.0),
    Sketcher.Constraint("DistanceY", 0, 2, 0, 1, 31.0),
    Sketcher.Constraint("DistanceX", -1, 1, 0, 2, 5.526465),
    Sketcher.Constraint("DistanceY", 0, 2, -1, 1, 51.230586),
])
sketch25.setExpression("Constraints[8]", "Params.sketch25_width")
sketch25.setExpression("Constraints[9]", "Params.sketch25_height")
pad20 = body.newObject("PartDesign::Pad", "Pad019")
pad20.Profile = sketch25
pad20.setExpression("Length", "Params.pad20_length")
pad20.Reversed = True

sketch26 = body.newObject("Sketcher::SketchObject", "Sketch025")
sketch26.AttachmentSupport = (doc.getObject("XY_Plane"), [""])
sketch26.MapMode = "FlatFace"
sketch26.AttachmentOffset = App.Placement(Vector(0, 0, 40), App.Rotation())
add_polygon(sketch26, [(-51.5, -47.2), (-51.5, -48.2), (2.5, -48.2), (2.5, -47.2)])
sketch26.addConstraint([
    Sketcher.Constraint("Vertical", 0),
    Sketcher.Constraint("Horizontal", 1),
    Sketcher.Constraint("Vertical", 2),
    Sketcher.Constraint("Horizontal", 3),
    Sketcher.Constraint("DistanceX", 1, 1, 1, 2, 54.0),
    Sketcher.Constraint("DistanceY", 0, 2, 0, 1, 1.0),
    Sketcher.Constraint("DistanceX", 0, 2, -1, 1, 51.473535),
    Sketcher.Constraint("DistanceY", 0, 2, -1, 1, 48.230586),
])
sketch26.setExpression("Constraints[8]", "Params.sketch26_width")
sketch26.setExpression("Constraints[9]", "Params.sketch26_height")
pad21 = body.newObject("PartDesign::Pad", "Pad020")
pad21.Profile = sketch26
pad21.setExpression("Length", "Params.pad21_length")
pad21.Reversed = True

sketch27 = body.newObject("Sketcher::SketchObject", "Sketch026")
sketch27.AttachmentSupport = (doc.getObject("XY_Plane"), [""])
sketch27.MapMode = "FlatFace"
sketch27.AttachmentOffset = App.Placement(Vector(0, 0, 40), App.Rotation())
add_polygon(sketch27, [(-55.5, -43.2), (-55.5, -51.2), (-51.5, -51.2), (-51.5, -43.2)])
sketch27.addConstraint([
    Sketcher.Constraint("Vertical", 0),
    Sketcher.Constraint("Horizontal", 1),
    Sketcher.Constraint("Vertical", 2),
    Sketcher.Constraint("Horizontal", 3),
    Sketcher.Constraint("DistanceX", 1, 1, 1, 2, 4.0),
    Sketcher.Constraint("DistanceY", 0, 2, 0, 1, 8.0),
    Sketcher.Constraint("DistanceX", 0, 2, -1, 1, 55.506493),
    Sketcher.Constraint("DistanceY", 0, 2, -1, 1, 51.230586),
])
sketch27.setExpression("Constraints[8]", "Params.sketch27_width")
sketch27.setExpression("Constraints[9]", "Params.sketch27_height")
pad22 = body.newObject("PartDesign::Pad", "Pad021")
pad22.Profile = sketch27
pad22.setExpression("Length", "Params.pad22_length")
pad22.Reversed = True

sketch28 = body.newObject("Sketcher::SketchObject", "Sketch027")
sketch28.AttachmentSupport = (doc.getObject("XY_Plane"), [""])
sketch28.MapMode = "FlatFace"
sketch28.AttachmentOffset = App.Placement(Vector(0, 0, 40), App.Rotation())
add_polygon(sketch28, [(-55.5, -43.2), (-55.5, -47.2), (-51.5, -47.2), (-51.5, -43.2)])
sketch28.addConstraint([
    Sketcher.Constraint("Vertical", 0),
    Sketcher.Constraint("Horizontal", 1),
    Sketcher.Constraint("Vertical", 2),
    Sketcher.Constraint("Horizontal", 3),
    Sketcher.Constraint("DistanceY", 0, 2, 0, 1, 4.0),
    Sketcher.Constraint("DistanceX", 1, 1, 1, 2, 4.032958),
    Sketcher.Constraint("DistanceX", 0, 2, -1, 1, 55.506493),
    Sketcher.Constraint("DistanceY", 0, 2, -1, 1, 47.230586),
])
sketch28.setExpression("Constraints[8]", "Params.sketch28_height")
pocket6 = body.newObject("PartDesign::Pocket", "Pocket005")
pocket6.Profile = sketch28
pocket6.setExpression("Length", "Params.pocket6_length")

sketch29 = body.newObject("Sketcher::SketchObject", "Sketch028")
sketch29.AttachmentSupport = (doc.getObject("XY_Plane"), [""])
sketch29.MapMode = "FlatFace"
sketch29.AttachmentOffset = App.Placement(Vector(0, 0, 40), App.Rotation())
add_polygon(sketch29, [(-58.5, -47.2), (-58.5, -51.2), (-55.5, -51.2), (-55.5, -47.2)])
sketch29.addConstraint([
    Sketcher.Constraint("Vertical", 0),
    Sketcher.Constraint("Horizontal", 1),
    Sketcher.Constraint("Vertical", 2),
    Sketcher.Constraint("Horizontal", 3),
    Sketcher.Constraint("DistanceX", 1, 1, 1, 2, 3.0),
    Sketcher.Constraint("DistanceY", 0, 2, 0, 1, 4.0),
    Sketcher.Constraint("DistanceX", 0, 2, -1, 1, 58.506493),
    Sketcher.Constraint("DistanceY", 0, 2, -1, 1, 51.230586),
])
sketch29.setExpression("Constraints[8]", "Params.sketch29_width")
sketch29.setExpression("Constraints[9]", "Params.sketch29_height")
pad23 = body.newObject("PartDesign::Pad", "Pad022")
pad23.Profile = sketch29
pad23.setExpression("Length", "Params.pad23_length")
pad23.Reversed = True

sketch30 = body.newObject("Sketcher::SketchObject", "Sketch029")
sketch30.AttachmentSupport = (doc.getObject("XY_Plane"), [""])
sketch30.MapMode = "FlatFace"
sketch30.AttachmentOffset = App.Placement(Vector(0, 0, 40), App.Rotation())
add_polygon(sketch30, [(-62.5, -43.2), (-62.5, -51.2), (-58.5, -51.2), (-58.5, -43.2)])
sketch30.addConstraint([
    Sketcher.Constraint("Vertical", 0),
    Sketcher.Constraint("Horizontal", 1),
    Sketcher.Constraint("Vertical", 2),
    Sketcher.Constraint("Horizontal", 3),
    Sketcher.Constraint("DistanceX", 1, 1, 1, 2, 4.0),
    Sketcher.Constraint("DistanceY", 0, 2, 0, 1, 8.0),
    Sketcher.Constraint("DistanceX", 0, 2, -1, 1, 62.506493),
    Sketcher.Constraint("DistanceY", 0, 2, -1, 1, 51.230586),
])
sketch30.setExpression("Constraints[8]", "Params.sketch30_width")
sketch30.setExpression("Constraints[9]", "Params.sketch30_height")
pad24 = body.newObject("PartDesign::Pad", "Pad023")
pad24.Profile = sketch30
pad24.setExpression("Length", "Params.pad24_length")
pad24.Reversed = True
doc.recompute()

fillet = body.newObject("PartDesign::Fillet", "Fillet")
fillet.Base = (pad24, edges_at(pad24, [
    (11.526, -16.231, 20),
    (11.526, -20.231, 20),
    (2.526, -20.231, 20),
    (-65.474, -20.231, 20),
    (11.526, 10.769, 20),
    (-65.474, 10.769, 20),
    (11.526, 6.769, 20),
    (-61.473, 6.769, 20),
    (-61.473, -16.231, 20),
    (8.526, -20.231, 20),
    (8.526, -51.231, 20),
    (2.526, -47.231, 20),
    (-58.506, -47.231, 20),
    (-58.506, -43.231, 20),
    (-62.506, -51.231, 20),
    (-62.506, -43.231, 20),
]))
fillet.setExpression("Radius", "Params.fillet_radius")
doc.recompute()

fillet2 = body.newObject("PartDesign::Fillet", "Fillet001")
fillet2.Base = (fillet, edges_at(fillet, [
    (-26.974, 10.769, 0),
    (-26.974, 10.769, 40),
    (-27.99, -47.231, 40),
    (-58.506, -45.231, 40),
    (-60.506, -43.231, 40),
    (-62.506, -47.231, 40),
    (-26.99, -51.231, 40),
    (8.526, -35.731, 40),
    (10.026, -20.231, 40),
    (11.526, -18.231, 40),
    (-24.973, -16.231, 40),
    (-61.473, -4.731, 40),
    (-24.973, 6.769, 40),
    (11.526, 8.769, 40),
    (-65.474, -4.731, 40),
    (-31.474, -20.231, 40),
    (2.526, -33.731, 40),
    (11.234, 7.062, 40),
    (11.234, 10.477, 40),
    (11.234, -16.523, 40),
    (11.234, -19.938, 40),
    (8.234, -50.938, 40),
    (-62.214, -43.523, 40),
    (-62.214, -50.938, 40),
    (-58.799, -43.523, 40),
    (-65.181, -19.938, 40),
    (-65.181, 10.477, 40),
    (-65.474, -4.731, 0),
    (-26.99, -51.231, 0),
    (-62.506, -47.231, 0),
    (-60.506, -43.231, 0),
    (-58.506, -45.231, 0),
    (-27.99, -47.231, 0),
    (2.526, -33.731, 0),
    (-31.474, -20.231, 0),
    (11.526, 8.769, 0),
    (-24.973, 6.769, 0),
    (-61.473, -4.731, 0),
    (-24.973, -16.231, 0),
    (11.526, -18.231, 0),
    (10.026, -20.231, 0),
    (8.526, -35.731, 0),
    (11.234, 7.062, 0),
    (11.234, 10.477, 0),
    (11.234, -16.523, 0),
    (11.234, -19.938, 0),
    (8.234, -50.938, 0),
    (-62.214, -43.523, 0),
    (-62.214, -50.938, 0),
    (-58.799, -43.523, 0),
    (-65.181, -19.938, 0),
    (-65.181, 10.477, 0),
    (-61.18, 6.477, 40),
    (-61.18, 6.477, 0),
    (-61.18, -15.938, 40),
    (-61.18, -15.938, 0),
    (2.234, -20.523, 0),
    (2.234, -20.523, 40),
    (2.234, -46.938, 40),
    (2.234, -46.938, 0),
    (-58.214, -46.938, 40),
    (-58.214, -46.938, 0),
    (8.819, -20.523, 40),
    (8.819, -20.523, 0),
]))
fillet2.setExpression("Radius", "Params.fillet2_radius")

doc.recompute()
